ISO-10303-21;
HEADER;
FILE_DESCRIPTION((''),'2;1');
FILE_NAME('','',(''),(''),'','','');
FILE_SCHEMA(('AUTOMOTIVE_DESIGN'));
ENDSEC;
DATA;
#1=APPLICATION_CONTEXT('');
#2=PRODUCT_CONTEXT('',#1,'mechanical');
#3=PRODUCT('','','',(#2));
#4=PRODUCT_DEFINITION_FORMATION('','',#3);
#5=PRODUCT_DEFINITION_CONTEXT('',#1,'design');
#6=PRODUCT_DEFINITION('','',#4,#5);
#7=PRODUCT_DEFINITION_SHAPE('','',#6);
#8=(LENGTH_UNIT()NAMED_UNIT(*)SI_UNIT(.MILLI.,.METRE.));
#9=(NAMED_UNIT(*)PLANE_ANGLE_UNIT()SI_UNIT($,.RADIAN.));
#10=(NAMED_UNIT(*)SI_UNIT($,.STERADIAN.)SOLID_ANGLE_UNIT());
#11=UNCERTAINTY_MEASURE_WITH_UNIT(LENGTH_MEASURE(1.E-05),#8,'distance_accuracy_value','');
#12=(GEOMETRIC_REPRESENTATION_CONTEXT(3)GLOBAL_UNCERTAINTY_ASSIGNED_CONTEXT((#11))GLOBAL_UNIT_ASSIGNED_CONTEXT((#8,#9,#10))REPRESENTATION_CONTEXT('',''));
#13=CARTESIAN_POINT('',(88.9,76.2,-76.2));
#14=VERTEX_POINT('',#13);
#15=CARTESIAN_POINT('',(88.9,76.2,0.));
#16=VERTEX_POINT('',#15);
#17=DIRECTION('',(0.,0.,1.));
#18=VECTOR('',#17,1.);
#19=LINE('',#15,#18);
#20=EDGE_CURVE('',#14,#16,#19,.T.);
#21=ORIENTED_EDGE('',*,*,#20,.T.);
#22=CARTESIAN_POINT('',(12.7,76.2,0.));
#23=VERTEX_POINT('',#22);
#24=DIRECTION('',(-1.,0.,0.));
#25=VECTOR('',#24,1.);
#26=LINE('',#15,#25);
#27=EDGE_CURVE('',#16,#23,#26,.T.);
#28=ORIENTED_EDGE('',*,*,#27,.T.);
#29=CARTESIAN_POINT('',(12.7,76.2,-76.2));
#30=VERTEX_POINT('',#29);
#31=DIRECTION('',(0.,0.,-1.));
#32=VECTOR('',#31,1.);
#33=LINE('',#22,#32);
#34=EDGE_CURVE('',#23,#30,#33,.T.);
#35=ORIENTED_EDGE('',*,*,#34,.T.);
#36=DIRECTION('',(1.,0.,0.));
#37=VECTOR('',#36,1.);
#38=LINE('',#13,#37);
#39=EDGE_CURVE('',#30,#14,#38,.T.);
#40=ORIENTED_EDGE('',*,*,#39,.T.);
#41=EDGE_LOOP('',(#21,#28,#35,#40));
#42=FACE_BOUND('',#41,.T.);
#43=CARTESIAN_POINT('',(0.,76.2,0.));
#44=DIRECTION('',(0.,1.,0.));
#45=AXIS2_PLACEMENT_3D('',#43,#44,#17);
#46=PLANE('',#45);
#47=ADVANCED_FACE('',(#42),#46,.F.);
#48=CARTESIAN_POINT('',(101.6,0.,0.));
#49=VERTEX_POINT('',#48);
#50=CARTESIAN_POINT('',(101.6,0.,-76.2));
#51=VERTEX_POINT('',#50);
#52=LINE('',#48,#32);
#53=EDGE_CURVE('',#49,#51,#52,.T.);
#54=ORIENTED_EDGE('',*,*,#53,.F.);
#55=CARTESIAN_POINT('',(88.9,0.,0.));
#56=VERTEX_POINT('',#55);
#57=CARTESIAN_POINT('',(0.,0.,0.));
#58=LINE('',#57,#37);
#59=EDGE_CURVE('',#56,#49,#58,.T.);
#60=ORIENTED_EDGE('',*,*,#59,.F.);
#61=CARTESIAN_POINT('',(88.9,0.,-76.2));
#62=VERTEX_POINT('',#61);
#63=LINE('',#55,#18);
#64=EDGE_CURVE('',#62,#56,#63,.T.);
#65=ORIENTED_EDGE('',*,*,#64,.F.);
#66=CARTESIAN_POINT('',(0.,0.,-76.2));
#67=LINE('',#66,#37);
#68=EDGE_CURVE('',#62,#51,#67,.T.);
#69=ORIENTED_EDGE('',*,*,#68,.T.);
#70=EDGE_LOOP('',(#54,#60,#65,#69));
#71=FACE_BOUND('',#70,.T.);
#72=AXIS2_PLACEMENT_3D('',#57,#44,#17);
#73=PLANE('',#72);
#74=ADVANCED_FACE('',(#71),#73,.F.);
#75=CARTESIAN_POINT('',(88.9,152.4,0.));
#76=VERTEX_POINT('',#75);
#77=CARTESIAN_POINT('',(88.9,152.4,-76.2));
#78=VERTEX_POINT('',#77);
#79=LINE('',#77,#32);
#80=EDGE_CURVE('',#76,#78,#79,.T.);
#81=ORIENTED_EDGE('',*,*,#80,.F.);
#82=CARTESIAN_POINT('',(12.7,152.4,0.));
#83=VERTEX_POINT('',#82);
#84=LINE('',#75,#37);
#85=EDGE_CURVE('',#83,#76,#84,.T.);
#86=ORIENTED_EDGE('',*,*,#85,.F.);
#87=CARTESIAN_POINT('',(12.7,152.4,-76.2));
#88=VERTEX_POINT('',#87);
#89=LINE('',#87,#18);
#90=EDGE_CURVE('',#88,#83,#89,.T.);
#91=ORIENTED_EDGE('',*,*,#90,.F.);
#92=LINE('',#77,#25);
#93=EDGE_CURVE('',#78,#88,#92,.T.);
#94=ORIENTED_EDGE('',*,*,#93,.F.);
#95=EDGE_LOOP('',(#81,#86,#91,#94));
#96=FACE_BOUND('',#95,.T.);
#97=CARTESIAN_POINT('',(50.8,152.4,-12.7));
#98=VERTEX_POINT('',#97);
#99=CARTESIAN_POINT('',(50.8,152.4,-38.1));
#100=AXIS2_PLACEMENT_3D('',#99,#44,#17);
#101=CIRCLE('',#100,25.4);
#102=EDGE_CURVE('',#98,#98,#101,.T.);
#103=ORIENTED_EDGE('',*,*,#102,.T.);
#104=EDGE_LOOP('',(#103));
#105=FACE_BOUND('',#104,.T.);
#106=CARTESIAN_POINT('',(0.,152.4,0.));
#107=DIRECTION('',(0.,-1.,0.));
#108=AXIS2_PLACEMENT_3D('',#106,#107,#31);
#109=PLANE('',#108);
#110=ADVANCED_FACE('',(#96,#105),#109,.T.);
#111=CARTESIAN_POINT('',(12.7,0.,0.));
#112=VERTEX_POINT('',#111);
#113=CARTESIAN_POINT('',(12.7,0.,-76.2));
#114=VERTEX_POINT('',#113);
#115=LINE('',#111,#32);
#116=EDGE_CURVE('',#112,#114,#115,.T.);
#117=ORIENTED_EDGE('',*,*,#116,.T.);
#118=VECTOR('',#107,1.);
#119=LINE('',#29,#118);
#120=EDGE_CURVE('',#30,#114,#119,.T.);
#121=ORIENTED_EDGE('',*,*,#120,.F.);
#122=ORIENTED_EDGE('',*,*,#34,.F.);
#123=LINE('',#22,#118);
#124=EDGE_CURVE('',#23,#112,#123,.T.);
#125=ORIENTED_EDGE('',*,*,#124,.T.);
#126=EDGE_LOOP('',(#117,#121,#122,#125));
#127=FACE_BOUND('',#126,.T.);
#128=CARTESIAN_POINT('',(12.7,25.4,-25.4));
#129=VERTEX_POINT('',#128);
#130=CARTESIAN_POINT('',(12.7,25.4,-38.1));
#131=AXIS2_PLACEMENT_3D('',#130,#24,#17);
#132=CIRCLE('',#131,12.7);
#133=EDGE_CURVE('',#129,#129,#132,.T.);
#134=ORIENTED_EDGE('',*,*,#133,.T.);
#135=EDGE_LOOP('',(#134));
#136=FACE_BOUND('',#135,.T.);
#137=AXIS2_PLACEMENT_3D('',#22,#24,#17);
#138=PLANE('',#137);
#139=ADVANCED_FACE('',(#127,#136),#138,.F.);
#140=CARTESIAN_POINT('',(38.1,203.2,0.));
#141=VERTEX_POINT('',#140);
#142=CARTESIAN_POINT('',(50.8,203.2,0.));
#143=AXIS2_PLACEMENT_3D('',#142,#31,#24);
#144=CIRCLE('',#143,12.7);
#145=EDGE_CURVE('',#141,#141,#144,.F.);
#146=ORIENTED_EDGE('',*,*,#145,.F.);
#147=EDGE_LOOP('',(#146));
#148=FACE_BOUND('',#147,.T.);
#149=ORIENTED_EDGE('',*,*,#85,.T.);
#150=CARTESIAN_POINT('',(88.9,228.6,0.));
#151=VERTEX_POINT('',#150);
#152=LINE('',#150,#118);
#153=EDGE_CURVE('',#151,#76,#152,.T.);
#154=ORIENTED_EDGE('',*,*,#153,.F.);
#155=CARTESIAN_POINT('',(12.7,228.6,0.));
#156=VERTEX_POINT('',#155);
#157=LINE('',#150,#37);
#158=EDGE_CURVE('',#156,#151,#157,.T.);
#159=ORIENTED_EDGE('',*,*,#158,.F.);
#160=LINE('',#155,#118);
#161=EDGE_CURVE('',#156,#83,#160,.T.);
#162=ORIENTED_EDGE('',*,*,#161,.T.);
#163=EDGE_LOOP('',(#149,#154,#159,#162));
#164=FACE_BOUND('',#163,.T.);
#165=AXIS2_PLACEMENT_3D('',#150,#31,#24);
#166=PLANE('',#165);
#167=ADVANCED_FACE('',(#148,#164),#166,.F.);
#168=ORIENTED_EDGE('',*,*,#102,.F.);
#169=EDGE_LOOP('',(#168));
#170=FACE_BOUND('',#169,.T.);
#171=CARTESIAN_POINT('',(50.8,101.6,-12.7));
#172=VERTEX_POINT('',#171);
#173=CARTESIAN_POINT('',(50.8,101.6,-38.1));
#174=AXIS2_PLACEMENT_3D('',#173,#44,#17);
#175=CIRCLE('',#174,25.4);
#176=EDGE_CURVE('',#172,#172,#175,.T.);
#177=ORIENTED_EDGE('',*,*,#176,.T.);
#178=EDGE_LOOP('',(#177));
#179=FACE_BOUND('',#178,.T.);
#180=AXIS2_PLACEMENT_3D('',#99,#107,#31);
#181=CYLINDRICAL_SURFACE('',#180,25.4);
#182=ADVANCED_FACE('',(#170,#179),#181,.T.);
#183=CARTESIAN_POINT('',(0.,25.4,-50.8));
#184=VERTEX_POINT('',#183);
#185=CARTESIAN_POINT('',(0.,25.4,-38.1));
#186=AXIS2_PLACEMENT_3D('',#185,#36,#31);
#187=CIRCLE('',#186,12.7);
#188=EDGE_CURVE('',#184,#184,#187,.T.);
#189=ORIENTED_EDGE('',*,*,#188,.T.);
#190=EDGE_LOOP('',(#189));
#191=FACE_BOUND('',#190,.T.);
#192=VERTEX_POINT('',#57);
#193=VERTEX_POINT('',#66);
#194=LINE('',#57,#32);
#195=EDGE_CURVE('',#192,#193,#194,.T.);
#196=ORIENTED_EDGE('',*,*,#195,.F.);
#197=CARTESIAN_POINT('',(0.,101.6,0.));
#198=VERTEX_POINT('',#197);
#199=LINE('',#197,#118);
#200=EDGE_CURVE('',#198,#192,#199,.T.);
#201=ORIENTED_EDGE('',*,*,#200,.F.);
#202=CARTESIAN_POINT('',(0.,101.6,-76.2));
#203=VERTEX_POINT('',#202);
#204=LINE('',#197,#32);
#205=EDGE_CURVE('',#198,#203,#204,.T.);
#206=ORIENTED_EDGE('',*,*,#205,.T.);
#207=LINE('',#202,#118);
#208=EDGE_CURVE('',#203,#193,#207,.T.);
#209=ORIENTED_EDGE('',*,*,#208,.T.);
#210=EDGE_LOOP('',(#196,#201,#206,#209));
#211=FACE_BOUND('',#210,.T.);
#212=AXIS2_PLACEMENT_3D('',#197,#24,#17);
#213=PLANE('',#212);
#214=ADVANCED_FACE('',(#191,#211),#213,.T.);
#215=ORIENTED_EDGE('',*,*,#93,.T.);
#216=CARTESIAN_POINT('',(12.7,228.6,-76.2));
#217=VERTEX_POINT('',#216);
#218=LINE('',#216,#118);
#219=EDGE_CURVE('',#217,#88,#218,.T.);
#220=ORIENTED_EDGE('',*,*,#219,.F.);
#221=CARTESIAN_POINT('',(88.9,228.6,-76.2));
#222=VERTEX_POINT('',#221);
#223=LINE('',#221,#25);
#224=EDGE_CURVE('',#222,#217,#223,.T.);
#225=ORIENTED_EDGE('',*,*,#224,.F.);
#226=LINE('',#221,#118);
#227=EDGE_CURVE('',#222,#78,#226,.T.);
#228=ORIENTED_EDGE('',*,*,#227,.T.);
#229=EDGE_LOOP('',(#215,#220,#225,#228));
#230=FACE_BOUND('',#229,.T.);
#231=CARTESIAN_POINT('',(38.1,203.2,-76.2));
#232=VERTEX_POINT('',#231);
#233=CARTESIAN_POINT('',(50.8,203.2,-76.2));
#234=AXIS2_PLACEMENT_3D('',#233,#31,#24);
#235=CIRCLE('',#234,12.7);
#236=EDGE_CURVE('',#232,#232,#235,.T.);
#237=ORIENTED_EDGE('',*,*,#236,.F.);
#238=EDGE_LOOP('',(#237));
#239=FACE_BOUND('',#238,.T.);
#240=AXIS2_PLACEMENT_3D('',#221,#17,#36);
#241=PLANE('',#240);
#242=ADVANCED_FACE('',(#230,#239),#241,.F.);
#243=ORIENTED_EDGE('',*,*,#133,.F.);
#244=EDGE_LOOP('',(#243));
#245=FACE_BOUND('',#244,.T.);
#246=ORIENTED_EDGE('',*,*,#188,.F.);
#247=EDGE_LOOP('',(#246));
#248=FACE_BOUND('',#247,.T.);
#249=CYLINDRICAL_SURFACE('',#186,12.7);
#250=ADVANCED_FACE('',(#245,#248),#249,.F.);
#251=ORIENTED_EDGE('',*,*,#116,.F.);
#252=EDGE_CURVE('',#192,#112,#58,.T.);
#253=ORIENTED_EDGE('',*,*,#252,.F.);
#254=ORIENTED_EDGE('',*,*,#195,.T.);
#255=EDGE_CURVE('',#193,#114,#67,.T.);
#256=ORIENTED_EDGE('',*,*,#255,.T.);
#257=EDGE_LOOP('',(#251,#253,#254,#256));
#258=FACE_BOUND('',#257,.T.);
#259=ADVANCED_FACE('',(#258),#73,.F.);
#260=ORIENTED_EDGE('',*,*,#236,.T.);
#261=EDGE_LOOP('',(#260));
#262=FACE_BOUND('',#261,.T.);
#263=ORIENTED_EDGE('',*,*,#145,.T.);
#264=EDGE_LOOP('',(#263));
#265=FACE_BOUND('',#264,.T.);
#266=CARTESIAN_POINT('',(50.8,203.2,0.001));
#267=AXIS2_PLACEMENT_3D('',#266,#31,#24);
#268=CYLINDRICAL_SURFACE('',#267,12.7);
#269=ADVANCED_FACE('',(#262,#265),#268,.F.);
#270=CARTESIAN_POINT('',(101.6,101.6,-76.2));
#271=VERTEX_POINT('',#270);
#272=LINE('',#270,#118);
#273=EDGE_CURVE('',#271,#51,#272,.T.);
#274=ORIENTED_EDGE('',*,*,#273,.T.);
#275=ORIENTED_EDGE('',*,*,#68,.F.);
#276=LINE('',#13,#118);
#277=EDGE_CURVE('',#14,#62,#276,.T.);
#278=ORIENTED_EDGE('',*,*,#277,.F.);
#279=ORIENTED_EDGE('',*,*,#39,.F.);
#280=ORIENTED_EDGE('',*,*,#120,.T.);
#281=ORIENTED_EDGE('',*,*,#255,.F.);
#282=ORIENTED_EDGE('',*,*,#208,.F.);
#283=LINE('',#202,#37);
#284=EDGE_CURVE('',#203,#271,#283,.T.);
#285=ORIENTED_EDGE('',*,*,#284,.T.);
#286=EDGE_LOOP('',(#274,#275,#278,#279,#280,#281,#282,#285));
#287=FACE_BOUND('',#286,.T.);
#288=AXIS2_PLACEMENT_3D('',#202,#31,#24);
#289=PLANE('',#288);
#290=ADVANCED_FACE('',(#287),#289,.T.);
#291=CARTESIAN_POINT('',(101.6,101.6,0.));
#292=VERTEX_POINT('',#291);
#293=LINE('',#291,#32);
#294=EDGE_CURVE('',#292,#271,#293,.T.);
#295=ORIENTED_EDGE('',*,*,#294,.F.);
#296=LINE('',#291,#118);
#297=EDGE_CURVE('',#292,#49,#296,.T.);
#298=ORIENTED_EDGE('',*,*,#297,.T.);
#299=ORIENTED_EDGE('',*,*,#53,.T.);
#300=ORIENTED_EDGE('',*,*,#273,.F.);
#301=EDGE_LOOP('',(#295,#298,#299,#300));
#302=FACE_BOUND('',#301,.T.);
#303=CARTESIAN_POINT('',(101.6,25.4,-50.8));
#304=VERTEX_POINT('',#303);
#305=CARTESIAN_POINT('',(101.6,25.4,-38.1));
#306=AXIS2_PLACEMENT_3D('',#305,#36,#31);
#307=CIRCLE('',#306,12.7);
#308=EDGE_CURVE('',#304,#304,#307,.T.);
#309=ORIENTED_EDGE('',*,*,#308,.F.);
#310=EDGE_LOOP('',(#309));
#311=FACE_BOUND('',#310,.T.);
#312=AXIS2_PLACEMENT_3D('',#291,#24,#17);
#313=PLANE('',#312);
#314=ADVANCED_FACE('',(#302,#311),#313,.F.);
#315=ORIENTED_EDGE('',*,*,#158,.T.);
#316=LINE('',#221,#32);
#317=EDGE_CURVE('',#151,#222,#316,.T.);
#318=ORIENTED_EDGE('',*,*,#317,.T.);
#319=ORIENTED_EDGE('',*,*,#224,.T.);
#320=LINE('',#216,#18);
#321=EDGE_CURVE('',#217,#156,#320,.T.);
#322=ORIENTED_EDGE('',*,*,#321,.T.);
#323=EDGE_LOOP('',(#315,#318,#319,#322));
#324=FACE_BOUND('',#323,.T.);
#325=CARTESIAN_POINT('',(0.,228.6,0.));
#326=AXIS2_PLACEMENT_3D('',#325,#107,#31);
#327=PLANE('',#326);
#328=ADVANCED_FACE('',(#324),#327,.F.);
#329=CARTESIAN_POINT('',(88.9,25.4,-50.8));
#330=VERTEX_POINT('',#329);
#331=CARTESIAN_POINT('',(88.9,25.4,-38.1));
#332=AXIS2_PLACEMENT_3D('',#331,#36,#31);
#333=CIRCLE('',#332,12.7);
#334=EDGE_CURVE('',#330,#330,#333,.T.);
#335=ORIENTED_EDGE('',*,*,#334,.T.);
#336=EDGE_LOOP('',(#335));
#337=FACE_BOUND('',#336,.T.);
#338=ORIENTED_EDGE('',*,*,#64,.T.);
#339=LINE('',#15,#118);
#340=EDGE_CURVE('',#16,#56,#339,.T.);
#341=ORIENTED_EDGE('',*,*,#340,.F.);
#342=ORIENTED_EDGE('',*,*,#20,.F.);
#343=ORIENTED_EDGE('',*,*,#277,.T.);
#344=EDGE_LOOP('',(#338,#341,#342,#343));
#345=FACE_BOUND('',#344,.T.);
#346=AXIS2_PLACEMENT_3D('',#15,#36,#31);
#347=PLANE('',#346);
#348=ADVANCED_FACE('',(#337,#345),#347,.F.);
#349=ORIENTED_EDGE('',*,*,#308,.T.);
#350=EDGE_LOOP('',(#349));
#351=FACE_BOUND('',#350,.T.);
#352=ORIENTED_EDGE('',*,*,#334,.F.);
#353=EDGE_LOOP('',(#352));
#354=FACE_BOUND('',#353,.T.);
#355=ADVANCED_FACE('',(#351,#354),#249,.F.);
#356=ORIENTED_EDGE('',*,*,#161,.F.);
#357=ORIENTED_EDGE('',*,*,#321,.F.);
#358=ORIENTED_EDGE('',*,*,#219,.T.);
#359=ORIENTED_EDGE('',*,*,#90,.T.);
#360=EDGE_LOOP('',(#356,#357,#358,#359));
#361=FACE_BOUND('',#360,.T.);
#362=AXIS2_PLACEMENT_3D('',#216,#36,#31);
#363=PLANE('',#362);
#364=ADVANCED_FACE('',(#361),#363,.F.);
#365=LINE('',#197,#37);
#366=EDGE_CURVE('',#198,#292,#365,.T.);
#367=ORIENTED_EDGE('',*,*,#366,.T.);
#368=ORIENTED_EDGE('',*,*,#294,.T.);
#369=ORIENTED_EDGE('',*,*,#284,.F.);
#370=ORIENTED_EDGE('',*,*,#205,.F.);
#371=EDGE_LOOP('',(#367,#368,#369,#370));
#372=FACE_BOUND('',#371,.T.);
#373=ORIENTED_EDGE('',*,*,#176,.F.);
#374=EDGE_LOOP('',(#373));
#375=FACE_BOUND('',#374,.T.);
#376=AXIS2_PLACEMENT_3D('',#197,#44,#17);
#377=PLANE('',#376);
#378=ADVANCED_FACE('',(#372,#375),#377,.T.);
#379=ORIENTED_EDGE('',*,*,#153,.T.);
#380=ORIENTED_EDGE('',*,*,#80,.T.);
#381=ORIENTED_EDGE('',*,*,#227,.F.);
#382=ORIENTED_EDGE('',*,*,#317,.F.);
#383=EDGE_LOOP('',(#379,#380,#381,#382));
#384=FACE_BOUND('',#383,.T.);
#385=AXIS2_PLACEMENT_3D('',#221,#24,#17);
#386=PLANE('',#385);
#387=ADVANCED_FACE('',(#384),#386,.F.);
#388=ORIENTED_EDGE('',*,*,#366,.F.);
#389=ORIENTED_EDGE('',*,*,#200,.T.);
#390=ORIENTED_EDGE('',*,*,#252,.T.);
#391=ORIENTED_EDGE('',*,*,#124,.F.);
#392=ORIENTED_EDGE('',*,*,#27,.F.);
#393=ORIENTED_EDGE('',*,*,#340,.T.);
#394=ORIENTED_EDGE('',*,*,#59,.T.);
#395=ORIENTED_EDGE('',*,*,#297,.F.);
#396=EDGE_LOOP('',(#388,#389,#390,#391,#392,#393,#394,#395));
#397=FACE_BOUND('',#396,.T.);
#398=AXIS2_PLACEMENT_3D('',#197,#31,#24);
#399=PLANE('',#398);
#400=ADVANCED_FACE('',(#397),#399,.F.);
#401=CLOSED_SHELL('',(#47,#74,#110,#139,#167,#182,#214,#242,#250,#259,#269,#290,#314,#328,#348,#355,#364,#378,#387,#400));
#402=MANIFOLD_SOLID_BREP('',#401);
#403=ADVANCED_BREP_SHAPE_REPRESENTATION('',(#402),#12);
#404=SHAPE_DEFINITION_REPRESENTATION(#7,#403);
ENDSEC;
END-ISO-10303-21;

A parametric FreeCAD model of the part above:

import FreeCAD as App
import Part
import Sketcher
from FreeCAD import Vector
Q = App.Units.Quantity


def add_polygon(sketch, points):
    """Adds a closed chain of lines whose ends are joined by coincident constraints."""
    first, n = sketch.GeometryCount, len(points)
    for a, b in zip(points, points[1:] + points[:1]):
        sketch.addGeometry(Part.LineSegment(App.Vector(*a, 0), App.Vector(*b, 0)), False)
    for i in range(n):
        sketch.addConstraint(Sketcher.Constraint("Coincident", first + i, 2, first + (i + 1) % n, 1))

doc = App.newDocument("Part")
params = doc.addObject("Spreadsheet::Sheet", "Params")
for row, (alias, value) in enumerate([
    ("sketch1_width", "4 in"),
    ("sketch1_height", "3 in"),
    ("pad1_length", "4 in"),
    ("sketch2_width", "3 in"),
    ("pocket1_length", "3 in"),
    ("sketch3_diameter", "2 in"),
    ("pad2_length", "2 in"),
    ("sketch4_width", "3 in"),
    ("pad3_length", "3 in"),
    ("sketch5_diameter", "1 in"),
    ("sketch6_diameter", "1 in"),
], start=1):
    params.set(f"A{row}", alias)
    params.set(f"B{row}", "=" + value)
    params.setAlias(f"B{row}", alias)

body = doc.addObject("PartDesign::Body", "Body")

# Sketch on XZ plane
sketch1 = body.newObject("Sketcher::SketchObject", "Sketch")
sketch1.AttachmentSupport = (doc.getObject("XZ_Plane"), [""])
sketch1.MapMode = "FlatFace"
add_polygon(sketch1, [(0, -76), (0, 0), (102, 0), (102, -76)])  # lines 0-3
sketch1.addConstraint(Sketcher.Constraint("Vertical", 0))
sketch1.addConstraint(Sketcher.Constraint("Horizontal", 1))
sketch1.addConstraint(Sketcher.Constraint("Vertical", 2))
sketch1.addConstraint(Sketcher.Constraint("Horizontal", 3))
sketch1.addConstraint(Sketcher.Constraint("Coincident", 0, 2, -1, 1))
sketch1.addConstraint(Sketcher.Constraint("DistanceX", 1, 1, 1, 2, Q("4 in")))
sketch1.addConstraint(Sketcher.Constraint("DistanceY", 0, 1, 0, 2, Q("3 in")))
sketch1.setExpression("Constraints[9]", "Params.sketch1_width")
sketch1.setExpression("Constraints[10]", "Params.sketch1_height")
pad1 = body.newObject("PartDesign::Pad", "Pad")
pad1.Profile = sketch1
pad1.setExpression("Length", "Params.pad1_length")
pad1.Reversed = True

# Sketch on XZ plane
sketch2 = body.newObject("Sketcher::SketchObject", "Sketch001")
sketch2.AttachmentSupport = (doc.getObject("XZ_Plane"), [""])
sketch2.MapMode = "FlatFace"
add_polygon(sketch2, [(13, 0), (13, -76), (89, -76), (89, 0)])  # lines 0-3
sketch2.addConstraint(Sketcher.Constraint("Vertical", 0))
sketch2.addConstraint(Sketcher.Constraint("Horizontal", 1))
sketch2.addConstraint(Sketcher.Constraint("Vertical", 2))
sketch2.addConstraint(Sketcher.Constraint("Horizontal", 3))
sketch2.addConstraint(Sketcher.Constraint("PointOnObject", 2, 2, -1))
sketch2.addConstraint(Sketcher.Constraint("Equal", 3, 0))
sketch2.addConstraint(Sketcher.Constraint("DistanceX", 1, 1, 1, 2, Q("3 in")))
sketch2.addConstraint(Sketcher.Constraint("DistanceX", -1, 1, 0, 2, Q("0.5 in")))
sketch2.setExpression("Constraints[10]", "Params.sketch2_width")
pocket1 = body.newObject("PartDesign::Pocket", "Pocket")
pocket1.Profile = sketch2
pocket1.setExpression("Length", "Params.pocket1_length")

# Sketch on XZ plane
sketch3 = body.newObject("Sketcher::SketchObject", "Sketch002")
sketch3.AttachmentSupport = (doc.getObject("XZ_Plane"), [""])
sketch3.MapMode = "FlatFace"
sketch3.AttachmentOffset = App.Placement(Vector(0, 0, -4 * 25.4), App.Rotation())
sketch3.addGeometry(Part.Circle(Vector(51, -38, 0), Vector(0, 0, 1), 25), False)
sketch3.addConstraint(Sketcher.Constraint("Diameter", 0, Q("2 in")))
sketch3.addConstraint(Sketcher.Constraint("DistanceX", -1, 1, 0, 3, Q("2 in")))
sketch3.addConstraint(Sketcher.Constraint("DistanceY", 0, 3, -1, 1, Q("1.5 in")))
sketch3.setExpression("Constraints[0]", "Params.sketch3_diameter")
pad2 = body.newObject("PartDesign::Pad", "Pad001")
pad2.Profile = sketch3
pad2.setExpression("Length", "Params.pad2_length")
pad2.Reversed = True

# Sketch on XZ plane
sketch4 = body.newObject("Sketcher::SketchObject", "Sketch003")
sketch4.AttachmentSupport = (doc.getObject("XZ_Plane"), [""])
sketch4.MapMode = "FlatFace"
sketch4.AttachmentOffset = App.Placement(Vector(0, 0, -6 * 25.4), App.Rotation())
add_polygon(sketch4, [(13, -76), (13, 0), (89, 0), (89, -76)])  # lines 0-3
sketch4.addConstraint(Sketcher.Constraint("Vertical", 0))
sketch4.addConstraint(Sketcher.Constraint("Horizontal", 1))
sketch4.addConstraint(Sketcher.Constraint("Vertical", 2))
sketch4.addConstraint(Sketcher.Constraint("Horizontal", 3))
sketch4.addConstraint(Sketcher.Constraint("PointOnObject", 0, 2, -1))
sketch4.addConstraint(Sketcher.Constraint("Equal", 3, 0))
sketch4.addConstraint(Sketcher.Constraint("DistanceX", 1, 1, 1, 2, Q("3 in")))
sketch4.addConstraint(Sketcher.Constraint("DistanceX", -1, 1, 0, 2, Q("0.5 in")))
sketch4.setExpression("Constraints[10]", "Params.sketch4_width")
pad3 = body.newObject("PartDesign::Pad", "Pad002")
pad3.Profile = sketch4
pad3.setExpression("Length", "Params.pad3_length")
pad3.Reversed = True

# Sketch on YZ plane
sketch5 = body.newObject("Sketcher::SketchObject", "Sketch004")
sketch5.AttachmentSupport = (doc.getObject("YZ_Plane"), [""])
sketch5.MapMode = "FlatFace"
sketch5.AttachmentOffset = App.Placement(Vector(0, 0, 4 * 25.4), App.Rotation())
sketch5.addGeometry(Part.Circle(Vector(25, -38, 0), Vector(0, 0, 1), 13), False)
sketch5.addConstraint(Sketcher.Constraint("Diameter", 0, Q("1 in")))
sketch5.addConstraint(Sketcher.Constraint("DistanceX", -1, 1, 0, 3, Q("1 in")))
sketch5.addConstraint(Sketcher.Constraint("DistanceY", 0, 3, -1, 1, Q("1.5 in")))
sketch5.setExpression("Constraints[0]", "Params.sketch5_diameter")
pocket2 = body.newObject("PartDesign::Pocket", "Pocket001")
pocket2.Profile = sketch5
pocket2.Type = "ThroughAll"

# Sketch on XY plane
sketch6 = body.newObject("Sketcher::SketchObject", "Sketch005")
sketch6.AttachmentSupport = (doc.getObject("XY_Plane"), [""])
sketch6.MapMode = "FlatFace"
sketch6.AttachmentOffset = App.Placement(Vector(0, 0, -3 * 25.4), App.Rotation())
sketch6.addGeometry(Part.Circle(Vector(51, 203, 0), Vector(0, 0, 1), 13), False)
sketch6.addConstraint(Sketcher.Constraint("Diameter", 0, Q("1 in")))
sketch6.addConstraint(Sketcher.Constraint("DistanceX", -1, 1, 0, 3, Q("2 in")))
sketch6.addConstraint(Sketcher.Constraint("DistanceY", -1, 1, 0, 3, Q("8 in")))
sketch6.setExpression("Constraints[0]", "Params.sketch6_diameter")
pocket3 = body.newObject("PartDesign::Pocket", "Pocket002")
pocket3.Profile = sketch6
pocket3.Type = "UpToFirst"
pocket3.Reversed = True

doc.recompute()
